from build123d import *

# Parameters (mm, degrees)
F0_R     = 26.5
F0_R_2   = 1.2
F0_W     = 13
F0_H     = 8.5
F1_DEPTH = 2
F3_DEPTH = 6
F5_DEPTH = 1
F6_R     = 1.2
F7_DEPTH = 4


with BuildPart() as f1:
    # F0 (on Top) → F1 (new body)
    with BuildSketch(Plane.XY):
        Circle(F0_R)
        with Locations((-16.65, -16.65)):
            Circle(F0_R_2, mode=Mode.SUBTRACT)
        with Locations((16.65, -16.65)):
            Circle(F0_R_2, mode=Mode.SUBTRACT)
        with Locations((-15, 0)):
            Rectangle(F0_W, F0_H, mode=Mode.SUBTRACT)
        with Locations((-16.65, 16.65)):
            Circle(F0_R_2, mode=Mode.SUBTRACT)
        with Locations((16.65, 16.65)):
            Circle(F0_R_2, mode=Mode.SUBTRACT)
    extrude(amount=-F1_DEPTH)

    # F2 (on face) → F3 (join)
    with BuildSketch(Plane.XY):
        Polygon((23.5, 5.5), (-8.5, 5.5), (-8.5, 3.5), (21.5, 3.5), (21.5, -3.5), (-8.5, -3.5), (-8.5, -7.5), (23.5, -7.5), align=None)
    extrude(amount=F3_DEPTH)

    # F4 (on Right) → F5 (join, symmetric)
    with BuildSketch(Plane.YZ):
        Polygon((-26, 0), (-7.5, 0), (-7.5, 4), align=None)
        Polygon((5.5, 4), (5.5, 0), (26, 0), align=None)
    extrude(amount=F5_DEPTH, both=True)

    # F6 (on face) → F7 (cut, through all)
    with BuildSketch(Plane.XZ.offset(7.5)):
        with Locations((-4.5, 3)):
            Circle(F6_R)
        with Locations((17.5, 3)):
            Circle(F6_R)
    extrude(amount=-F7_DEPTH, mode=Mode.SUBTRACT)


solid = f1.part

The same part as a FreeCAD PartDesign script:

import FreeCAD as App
import Part
import Sketcher

doc = App.newDocument("Part")
params = doc.addObject("Spreadsheet::Sheet", "Params")
for row, (alias, value) in enumerate([
    ("sketch1_diameter", "53 mm"),
    ("sketch1_diameter2", "2.4 mm"),
    ("sketch1_width", "13 mm"),
    ("sketch1_height", "8.5 mm"),
    ("pad1_length", "2 mm"),
    ("sketch2_width", "32 mm"),
    ("sketch2_width2", "30 mm"),
    ("sketch2_height", "2 mm"),
    ("sketch2_height2", "7 mm"),
    ("sketch2_height3", "4 mm"),
    ("pad2_length", "6 mm"),
    ("sketch3_height", "4 mm"),
    ("sketch3_width", "18.5 mm"),
    ("sketch3_width2", "20.5 mm"),
    ("pad3_length", "2 mm"),
    ("sketch4_diameter", "2.4 mm"),
    ("pocket1_length", "4 mm"),
], start=1):
    params.set(f"A{row}", alias)
    params.set(f"B{row}", "=" + value)
    params.setAlias(f"B{row}", alias)

body = doc.addObject("PartDesign::Body", "Body")

sketch1 = body.newObject("Sketcher::SketchObject", "Sketch")
sketch1.AttachmentSupport = (doc.getObject("XY_Plane"), [""])
sketch1.MapMode = "FlatFace"
sketch1.addGeometry([
    Part.Circle(App.Vector(0, 0, 0), App.Vector(0, 0, 1), 26.5),
    Part.Circle(App.Vector(-16.6, -16.6, 0), App.Vector(0, 0, 1), 1.2),
    Part.Circle(App.Vector(16.6, -16.6, 0), App.Vector(0, 0, 1), 1.2),
    Part.LineSegment(App.Vector(-8.5, -4.2, 0), App.Vector(-21.5, -4.2, 0)),
    Part.LineSegment(App.Vector(-21.5, -4.2, 0), App.Vector(-21.5, 4.2, 0)),
    Part.LineSegment(App.Vector(-21.5, 4.2, 0), App.Vector(-8.5, 4.2, 0)),
    Part.LineSegment(App.Vector(-8.5, 4.2, 0), App.Vector(-8.5, -4.2, 0)),
    Part.Circle(App.Vector(-16.6, 16.6, 0), App.Vector(0, 0, 1), 1.2),
    Part.Circle(App.Vector(16.6, 16.6, 0), App.Vector(0, 0, 1), 1.2),
], False)
sketch1.addConstraint([
    Sketcher.Constraint("Coincident", 3, 2, 4, 1),
    Sketcher.Constraint("Coincident", 4, 2, 5, 1),
    Sketcher.Constraint("Coincident", 5, 2, 6, 1),
    Sketcher.Constraint("Coincident", 6, 2, 3, 1),
    Sketcher.Constraint("Horizontal", 3),
    Sketcher.Constraint("Vertical", 4),
    Sketcher.Constraint("Horizontal", 5),
    Sketcher.Constraint("Vertical", 6),
    Sketcher.Constraint("Coincident", 0, 3, -1, 1),
    Sketcher.Constraint("Equal", 1, 2),
    Sketcher.Constraint("Equal", 2, 7),
    Sketcher.Constraint("Equal", 7, 8),
    Sketcher.Constraint("Symmetric", 2, 3, 7, 3, -1, 1),
    Sketcher.Constraint("Symmetric", 1, 3, 8, 3, -1, 1),
    Sketcher.Constraint("Symmetric", 1, 3, 2, 3, -2),
    Sketcher.Constraint("Diameter", 0, 53.0),
    Sketcher.Constraint("Diameter", 1, 2.4),
    Sketcher.Constraint("DistanceX", 3, 2, 3, 1, 13.0),
    Sketcher.Constraint("DistanceY", 4, 1, 4, 2, 8.5),
    Sketcher.Constraint("DistanceX", 3, 2, -1, 1, 21.5),
    Sketcher.Constraint("DistanceX", 1, 3, 2, 3, 33.3),
    Sketcher.Constraint("DistanceY", 1, 3, 7, 3, 33.3),
    Sketcher.Constraint("DistanceY", 1, 3, 3, 2, 12.4),
])
sketch1.setExpression("Constraints[15]", "Params.sketch1_diameter")
sketch1.setExpression("Constraints[16]", "Params.sketch1_diameter2")
sketch1.setExpression("Constraints[17]", "Params.sketch1_width")
sketch1.setExpression("Constraints[18]", "Params.sketch1_height")
pad1 = body.newObject("PartDesign::Pad", "Pad")
pad1.Profile = sketch1
pad1.setExpression("Length", "Params.pad1_length")
pad1.Reversed = True

sketch2 = body.newObject("Sketcher::SketchObject", "Sketch001")
sketch2.AttachmentSupport = (doc.getObject("XY_Plane"), [""])
sketch2.MapMode = "FlatFace"
sketch2.addGeometry([
    Part.LineSegment(App.Vector(23.5, 5.5, 0), App.Vector(-8.5, 5.5, 0)),
    Part.LineSegment(App.Vector(-8.5, 5.5, 0), App.Vector(-8.5, 3.5, 0)),
    Part.LineSegment(App.Vector(-8.5, 3.5, 0), App.Vector(21.5, 3.5, 0)),
    Part.LineSegment(App.Vector(21.5, 3.5, 0), App.Vector(21.5, -3.5, 0)),
    Part.LineSegment(App.Vector(21.5, -3.5, 0), App.Vector(-8.5, -3.5, 0)),
    Part.LineSegment(App.Vector(-8.5, -3.5, 0), App.Vector(-8.5, -7.5, 0)),
    Part.LineSegment(App.Vector(-8.5, -7.5, 0), App.Vector(23.5, -7.5, 0)),
    Part.LineSegment(App.Vector(23.5, -7.5, 0), App.Vector(23.5, 5.5, 0)),
], False)
sketch2.addConstraint([
    Sketcher.Constraint("Coincident", 0, 2, 1, 1),
    Sketcher.Constraint("Coincident", 1, 2, 2, 1),
    Sketcher.Constraint("Coincident", 2, 2, 3, 1),
    Sketcher.Constraint("Coincident", 3, 2, 4, 1),
    Sketcher.Constraint("Coincident", 4, 2, 5, 1),
    Sketcher.Constraint("Coincident", 5, 2, 6, 1),
    Sketcher.Constraint("Coincident", 6, 2, 7, 1),
    Sketcher.Constraint("Coincident", 7, 2, 0, 1),
    Sketcher.Constraint("Horizontal", 0),
    Sketcher.Constraint("Vertical", 1),
    Sketcher.Constraint("Horizontal", 2),
    Sketcher.Constraint("Vertical", 3),
    Sketcher.Constraint("Horizontal", 4),
    Sketcher.Constraint("Vertical", 5),
    Sketcher.Constraint("Horizontal", 6),
    Sketcher.Constraint("Vertical", 7),
    Sketcher.Constraint("Symmetric", 1, 2, 4, 2, -1),
    Sketcher.Constraint("DistanceX", 0, 2, 0, 1, 32.0),
    Sketcher.Constraint("DistanceX", 2, 1, 2, 2, 30.0),
    Sketcher.Constraint("DistanceY", 1, 2, 1, 1, 2.0),
    Sketcher.Constraint("DistanceY", 3, 2, 3, 1, 7.0),
    Sketcher.Constraint("DistanceY", 5, 2, 5, 1, 4.0),
    Sketcher.Constraint("DistanceX", 0, 2, -1, 1, 8.5),
])
sketch2.setExpression("Constraints[17]", "Params.sketch2_width")
sketch2.setExpression("Constraints[18]", "Params.sketch2_width2")
sketch2.setExpression("Constraints[19]", "Params.sketch2_height")
sketch2.setExpression("Constraints[20]", "Params.sketch2_height2")
sketch2.setExpression("Constraints[21]", "Params.sketch2_height3")
pad2 = body.newObject("PartDesign::Pad", "Pad001")
pad2.Profile = sketch2
pad2.setExpression("Length", "Params.pad2_length")

sketch3 = body.newObject("Sketcher::SketchObject", "Sketch002")
sketch3.AttachmentSupport = (doc.getObject("YZ_Plane"), [""])
sketch3.MapMode = "FlatFace"
sketch3.addGeometry([
    Part.LineSegment(App.Vector(-26, 0, 0), App.Vector(-7.5, 0, 0)),
    Part.LineSegment(App.Vector(-7.5, 0, 0), App.Vector(-7.5, 4, 0)),
    Part.LineSegment(App.Vector(-7.5, 4, 0), App.Vector(-26, 0, 0)),
    Part.LineSegment(App.Vector(5.5, 4, 0), App.Vector(5.5, 0, 0)),
    Part.LineSegment(App.Vector(5.5, 0, 0), App.Vector(26, 0, 0)),
    Part.LineSegment(App.Vector(26, 0, 0), App.Vector(5.5, 4, 0)),
], False)
sketch3.addConstraint([
    Sketcher.Constraint("Coincident", 0, 2, 1, 1),
    Sketcher.Constraint("Coincident", 1, 2, 2, 1),
    Sketcher.Constraint("Coincident", 2, 2, 0, 1),
    Sketcher.Constraint("Coincident", 3, 2, 4, 1),
    Sketcher.Constraint("Coincident", 4, 2, 5, 1),
    Sketcher.Constraint("Coincident", 5, 2, 3, 1),
    Sketcher.Constraint("Horizontal", 0),
    Sketcher.Constraint("Vertical", 1),
    Sketcher.Constraint("Vertical", 3),
    Sketcher.Constraint("Horizontal", 4),
    Sketcher.Constraint("Symmetric", 2, 2, 4, 2, -1, 1),
    Sketcher.Constraint("PointOnObject", 0, 2, -1),
    Sketcher.Constraint("Horizontal", 1, 2, 5, 2),
    Sketcher.Constraint("DistanceY", 1, 1, 1, 2, 4.0),
    Sketcher.Constraint("DistanceX", 0, 1, 0, 2, 18.5),
    Sketcher.Constraint("DistanceX", 4, 1, 4, 2, 20.5),
    Sketcher.Constraint("DistanceX", 2, 2, -1, 1, 26.0),
])
sketch3.setExpression("Constraints[13]", "Params.sketch3_height")
sketch3.setExpression("Constraints[14]", "Params.sketch3_width")
sketch3.setExpression("Constraints[15]", "Params.sketch3_width2")
pad3 = body.newObject("PartDesign::Pad", "Pad002")
pad3.Profile = sketch3
pad3.setExpression("Length", "Params.pad3_length")
pad3.Midplane = True

sketch4 = body.newObject("Sketcher::SketchObject", "Sketch003")
sketch4.AttachmentSupport = (doc.getObject("XZ_Plane"), [""])
sketch4.MapMode = "FlatFace"
sketch4.AttachmentOffset = App.Placement(App.Vector(0, 0, 7.5), App.Rotation())
sketch4.addGeometry([
    Part.Circle(App.Vector(-4.5, 3, 0), App.Vector(0, 0, 1), 1.2),
    Part.Circle(App.Vector(17.5, 3, 0), App.Vector(0, 0, 1), 1.2),
], False)
sketch4.addConstraint([
    Sketcher.Constraint("Equal", 0, 1),
    Sketcher.Constraint("Horizontal", 0, 3, 1, 3),
    Sketcher.Constraint("Diameter", 0, 2.4),
    Sketcher.Constraint("DistanceY", -1, 1, 0, 3, 3.0),
    Sketcher.Constraint("DistanceX", 0, 3, 1, 3, 22.0),
    Sketcher.Constraint("DistanceX", 0, 3, -1, 1, 4.5),
])
sketch4.setExpression("Constraints[2]", "Params.sketch4_diameter")
pocket1 = body.newObject("PartDesign::Pocket", "Pocket")
pocket1.Profile = sketch4
pocket1.setExpression("Length", "Params.pocket1_length")

doc.recompute()
